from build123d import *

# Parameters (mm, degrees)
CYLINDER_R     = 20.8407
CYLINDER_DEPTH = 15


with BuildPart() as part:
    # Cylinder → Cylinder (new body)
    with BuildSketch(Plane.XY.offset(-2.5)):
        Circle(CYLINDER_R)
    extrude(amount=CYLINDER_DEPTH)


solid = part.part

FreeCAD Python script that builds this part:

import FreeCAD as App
import Part
import Sketcher

V = App.Vector

doc = App.newDocument("Part")
body = doc.addObject("PartDesign::Body", "Body")

# Sketch on XY plane
sketch1 = body.newObject("Sketcher::SketchObject", "Sketch")
sketch1.AttachmentSupport = (doc.getObject("XY_Plane"), [""])
sketch1.MapMode = "FlatFace"
sketch1.AttachmentOffset = App.Placement(V(0, 0, -2.5), App.Rotation())
sketch1.addGeometry(Part.Circle(V(0, 0, 0), V(0, 0, 1), 20.8407), False)
sketch1.addConstraint(Sketcher.Constraint("Coincident", 0, 3, -1, 1))
sketch1.addConstraint(Sketcher.Constraint("Diameter", 0, 41.6814))
pad1 = body.newObject("PartDesign::Pad", "Pad")
pad1.Profile = sketch1
pad1.Length = 15

doc.recompute()
